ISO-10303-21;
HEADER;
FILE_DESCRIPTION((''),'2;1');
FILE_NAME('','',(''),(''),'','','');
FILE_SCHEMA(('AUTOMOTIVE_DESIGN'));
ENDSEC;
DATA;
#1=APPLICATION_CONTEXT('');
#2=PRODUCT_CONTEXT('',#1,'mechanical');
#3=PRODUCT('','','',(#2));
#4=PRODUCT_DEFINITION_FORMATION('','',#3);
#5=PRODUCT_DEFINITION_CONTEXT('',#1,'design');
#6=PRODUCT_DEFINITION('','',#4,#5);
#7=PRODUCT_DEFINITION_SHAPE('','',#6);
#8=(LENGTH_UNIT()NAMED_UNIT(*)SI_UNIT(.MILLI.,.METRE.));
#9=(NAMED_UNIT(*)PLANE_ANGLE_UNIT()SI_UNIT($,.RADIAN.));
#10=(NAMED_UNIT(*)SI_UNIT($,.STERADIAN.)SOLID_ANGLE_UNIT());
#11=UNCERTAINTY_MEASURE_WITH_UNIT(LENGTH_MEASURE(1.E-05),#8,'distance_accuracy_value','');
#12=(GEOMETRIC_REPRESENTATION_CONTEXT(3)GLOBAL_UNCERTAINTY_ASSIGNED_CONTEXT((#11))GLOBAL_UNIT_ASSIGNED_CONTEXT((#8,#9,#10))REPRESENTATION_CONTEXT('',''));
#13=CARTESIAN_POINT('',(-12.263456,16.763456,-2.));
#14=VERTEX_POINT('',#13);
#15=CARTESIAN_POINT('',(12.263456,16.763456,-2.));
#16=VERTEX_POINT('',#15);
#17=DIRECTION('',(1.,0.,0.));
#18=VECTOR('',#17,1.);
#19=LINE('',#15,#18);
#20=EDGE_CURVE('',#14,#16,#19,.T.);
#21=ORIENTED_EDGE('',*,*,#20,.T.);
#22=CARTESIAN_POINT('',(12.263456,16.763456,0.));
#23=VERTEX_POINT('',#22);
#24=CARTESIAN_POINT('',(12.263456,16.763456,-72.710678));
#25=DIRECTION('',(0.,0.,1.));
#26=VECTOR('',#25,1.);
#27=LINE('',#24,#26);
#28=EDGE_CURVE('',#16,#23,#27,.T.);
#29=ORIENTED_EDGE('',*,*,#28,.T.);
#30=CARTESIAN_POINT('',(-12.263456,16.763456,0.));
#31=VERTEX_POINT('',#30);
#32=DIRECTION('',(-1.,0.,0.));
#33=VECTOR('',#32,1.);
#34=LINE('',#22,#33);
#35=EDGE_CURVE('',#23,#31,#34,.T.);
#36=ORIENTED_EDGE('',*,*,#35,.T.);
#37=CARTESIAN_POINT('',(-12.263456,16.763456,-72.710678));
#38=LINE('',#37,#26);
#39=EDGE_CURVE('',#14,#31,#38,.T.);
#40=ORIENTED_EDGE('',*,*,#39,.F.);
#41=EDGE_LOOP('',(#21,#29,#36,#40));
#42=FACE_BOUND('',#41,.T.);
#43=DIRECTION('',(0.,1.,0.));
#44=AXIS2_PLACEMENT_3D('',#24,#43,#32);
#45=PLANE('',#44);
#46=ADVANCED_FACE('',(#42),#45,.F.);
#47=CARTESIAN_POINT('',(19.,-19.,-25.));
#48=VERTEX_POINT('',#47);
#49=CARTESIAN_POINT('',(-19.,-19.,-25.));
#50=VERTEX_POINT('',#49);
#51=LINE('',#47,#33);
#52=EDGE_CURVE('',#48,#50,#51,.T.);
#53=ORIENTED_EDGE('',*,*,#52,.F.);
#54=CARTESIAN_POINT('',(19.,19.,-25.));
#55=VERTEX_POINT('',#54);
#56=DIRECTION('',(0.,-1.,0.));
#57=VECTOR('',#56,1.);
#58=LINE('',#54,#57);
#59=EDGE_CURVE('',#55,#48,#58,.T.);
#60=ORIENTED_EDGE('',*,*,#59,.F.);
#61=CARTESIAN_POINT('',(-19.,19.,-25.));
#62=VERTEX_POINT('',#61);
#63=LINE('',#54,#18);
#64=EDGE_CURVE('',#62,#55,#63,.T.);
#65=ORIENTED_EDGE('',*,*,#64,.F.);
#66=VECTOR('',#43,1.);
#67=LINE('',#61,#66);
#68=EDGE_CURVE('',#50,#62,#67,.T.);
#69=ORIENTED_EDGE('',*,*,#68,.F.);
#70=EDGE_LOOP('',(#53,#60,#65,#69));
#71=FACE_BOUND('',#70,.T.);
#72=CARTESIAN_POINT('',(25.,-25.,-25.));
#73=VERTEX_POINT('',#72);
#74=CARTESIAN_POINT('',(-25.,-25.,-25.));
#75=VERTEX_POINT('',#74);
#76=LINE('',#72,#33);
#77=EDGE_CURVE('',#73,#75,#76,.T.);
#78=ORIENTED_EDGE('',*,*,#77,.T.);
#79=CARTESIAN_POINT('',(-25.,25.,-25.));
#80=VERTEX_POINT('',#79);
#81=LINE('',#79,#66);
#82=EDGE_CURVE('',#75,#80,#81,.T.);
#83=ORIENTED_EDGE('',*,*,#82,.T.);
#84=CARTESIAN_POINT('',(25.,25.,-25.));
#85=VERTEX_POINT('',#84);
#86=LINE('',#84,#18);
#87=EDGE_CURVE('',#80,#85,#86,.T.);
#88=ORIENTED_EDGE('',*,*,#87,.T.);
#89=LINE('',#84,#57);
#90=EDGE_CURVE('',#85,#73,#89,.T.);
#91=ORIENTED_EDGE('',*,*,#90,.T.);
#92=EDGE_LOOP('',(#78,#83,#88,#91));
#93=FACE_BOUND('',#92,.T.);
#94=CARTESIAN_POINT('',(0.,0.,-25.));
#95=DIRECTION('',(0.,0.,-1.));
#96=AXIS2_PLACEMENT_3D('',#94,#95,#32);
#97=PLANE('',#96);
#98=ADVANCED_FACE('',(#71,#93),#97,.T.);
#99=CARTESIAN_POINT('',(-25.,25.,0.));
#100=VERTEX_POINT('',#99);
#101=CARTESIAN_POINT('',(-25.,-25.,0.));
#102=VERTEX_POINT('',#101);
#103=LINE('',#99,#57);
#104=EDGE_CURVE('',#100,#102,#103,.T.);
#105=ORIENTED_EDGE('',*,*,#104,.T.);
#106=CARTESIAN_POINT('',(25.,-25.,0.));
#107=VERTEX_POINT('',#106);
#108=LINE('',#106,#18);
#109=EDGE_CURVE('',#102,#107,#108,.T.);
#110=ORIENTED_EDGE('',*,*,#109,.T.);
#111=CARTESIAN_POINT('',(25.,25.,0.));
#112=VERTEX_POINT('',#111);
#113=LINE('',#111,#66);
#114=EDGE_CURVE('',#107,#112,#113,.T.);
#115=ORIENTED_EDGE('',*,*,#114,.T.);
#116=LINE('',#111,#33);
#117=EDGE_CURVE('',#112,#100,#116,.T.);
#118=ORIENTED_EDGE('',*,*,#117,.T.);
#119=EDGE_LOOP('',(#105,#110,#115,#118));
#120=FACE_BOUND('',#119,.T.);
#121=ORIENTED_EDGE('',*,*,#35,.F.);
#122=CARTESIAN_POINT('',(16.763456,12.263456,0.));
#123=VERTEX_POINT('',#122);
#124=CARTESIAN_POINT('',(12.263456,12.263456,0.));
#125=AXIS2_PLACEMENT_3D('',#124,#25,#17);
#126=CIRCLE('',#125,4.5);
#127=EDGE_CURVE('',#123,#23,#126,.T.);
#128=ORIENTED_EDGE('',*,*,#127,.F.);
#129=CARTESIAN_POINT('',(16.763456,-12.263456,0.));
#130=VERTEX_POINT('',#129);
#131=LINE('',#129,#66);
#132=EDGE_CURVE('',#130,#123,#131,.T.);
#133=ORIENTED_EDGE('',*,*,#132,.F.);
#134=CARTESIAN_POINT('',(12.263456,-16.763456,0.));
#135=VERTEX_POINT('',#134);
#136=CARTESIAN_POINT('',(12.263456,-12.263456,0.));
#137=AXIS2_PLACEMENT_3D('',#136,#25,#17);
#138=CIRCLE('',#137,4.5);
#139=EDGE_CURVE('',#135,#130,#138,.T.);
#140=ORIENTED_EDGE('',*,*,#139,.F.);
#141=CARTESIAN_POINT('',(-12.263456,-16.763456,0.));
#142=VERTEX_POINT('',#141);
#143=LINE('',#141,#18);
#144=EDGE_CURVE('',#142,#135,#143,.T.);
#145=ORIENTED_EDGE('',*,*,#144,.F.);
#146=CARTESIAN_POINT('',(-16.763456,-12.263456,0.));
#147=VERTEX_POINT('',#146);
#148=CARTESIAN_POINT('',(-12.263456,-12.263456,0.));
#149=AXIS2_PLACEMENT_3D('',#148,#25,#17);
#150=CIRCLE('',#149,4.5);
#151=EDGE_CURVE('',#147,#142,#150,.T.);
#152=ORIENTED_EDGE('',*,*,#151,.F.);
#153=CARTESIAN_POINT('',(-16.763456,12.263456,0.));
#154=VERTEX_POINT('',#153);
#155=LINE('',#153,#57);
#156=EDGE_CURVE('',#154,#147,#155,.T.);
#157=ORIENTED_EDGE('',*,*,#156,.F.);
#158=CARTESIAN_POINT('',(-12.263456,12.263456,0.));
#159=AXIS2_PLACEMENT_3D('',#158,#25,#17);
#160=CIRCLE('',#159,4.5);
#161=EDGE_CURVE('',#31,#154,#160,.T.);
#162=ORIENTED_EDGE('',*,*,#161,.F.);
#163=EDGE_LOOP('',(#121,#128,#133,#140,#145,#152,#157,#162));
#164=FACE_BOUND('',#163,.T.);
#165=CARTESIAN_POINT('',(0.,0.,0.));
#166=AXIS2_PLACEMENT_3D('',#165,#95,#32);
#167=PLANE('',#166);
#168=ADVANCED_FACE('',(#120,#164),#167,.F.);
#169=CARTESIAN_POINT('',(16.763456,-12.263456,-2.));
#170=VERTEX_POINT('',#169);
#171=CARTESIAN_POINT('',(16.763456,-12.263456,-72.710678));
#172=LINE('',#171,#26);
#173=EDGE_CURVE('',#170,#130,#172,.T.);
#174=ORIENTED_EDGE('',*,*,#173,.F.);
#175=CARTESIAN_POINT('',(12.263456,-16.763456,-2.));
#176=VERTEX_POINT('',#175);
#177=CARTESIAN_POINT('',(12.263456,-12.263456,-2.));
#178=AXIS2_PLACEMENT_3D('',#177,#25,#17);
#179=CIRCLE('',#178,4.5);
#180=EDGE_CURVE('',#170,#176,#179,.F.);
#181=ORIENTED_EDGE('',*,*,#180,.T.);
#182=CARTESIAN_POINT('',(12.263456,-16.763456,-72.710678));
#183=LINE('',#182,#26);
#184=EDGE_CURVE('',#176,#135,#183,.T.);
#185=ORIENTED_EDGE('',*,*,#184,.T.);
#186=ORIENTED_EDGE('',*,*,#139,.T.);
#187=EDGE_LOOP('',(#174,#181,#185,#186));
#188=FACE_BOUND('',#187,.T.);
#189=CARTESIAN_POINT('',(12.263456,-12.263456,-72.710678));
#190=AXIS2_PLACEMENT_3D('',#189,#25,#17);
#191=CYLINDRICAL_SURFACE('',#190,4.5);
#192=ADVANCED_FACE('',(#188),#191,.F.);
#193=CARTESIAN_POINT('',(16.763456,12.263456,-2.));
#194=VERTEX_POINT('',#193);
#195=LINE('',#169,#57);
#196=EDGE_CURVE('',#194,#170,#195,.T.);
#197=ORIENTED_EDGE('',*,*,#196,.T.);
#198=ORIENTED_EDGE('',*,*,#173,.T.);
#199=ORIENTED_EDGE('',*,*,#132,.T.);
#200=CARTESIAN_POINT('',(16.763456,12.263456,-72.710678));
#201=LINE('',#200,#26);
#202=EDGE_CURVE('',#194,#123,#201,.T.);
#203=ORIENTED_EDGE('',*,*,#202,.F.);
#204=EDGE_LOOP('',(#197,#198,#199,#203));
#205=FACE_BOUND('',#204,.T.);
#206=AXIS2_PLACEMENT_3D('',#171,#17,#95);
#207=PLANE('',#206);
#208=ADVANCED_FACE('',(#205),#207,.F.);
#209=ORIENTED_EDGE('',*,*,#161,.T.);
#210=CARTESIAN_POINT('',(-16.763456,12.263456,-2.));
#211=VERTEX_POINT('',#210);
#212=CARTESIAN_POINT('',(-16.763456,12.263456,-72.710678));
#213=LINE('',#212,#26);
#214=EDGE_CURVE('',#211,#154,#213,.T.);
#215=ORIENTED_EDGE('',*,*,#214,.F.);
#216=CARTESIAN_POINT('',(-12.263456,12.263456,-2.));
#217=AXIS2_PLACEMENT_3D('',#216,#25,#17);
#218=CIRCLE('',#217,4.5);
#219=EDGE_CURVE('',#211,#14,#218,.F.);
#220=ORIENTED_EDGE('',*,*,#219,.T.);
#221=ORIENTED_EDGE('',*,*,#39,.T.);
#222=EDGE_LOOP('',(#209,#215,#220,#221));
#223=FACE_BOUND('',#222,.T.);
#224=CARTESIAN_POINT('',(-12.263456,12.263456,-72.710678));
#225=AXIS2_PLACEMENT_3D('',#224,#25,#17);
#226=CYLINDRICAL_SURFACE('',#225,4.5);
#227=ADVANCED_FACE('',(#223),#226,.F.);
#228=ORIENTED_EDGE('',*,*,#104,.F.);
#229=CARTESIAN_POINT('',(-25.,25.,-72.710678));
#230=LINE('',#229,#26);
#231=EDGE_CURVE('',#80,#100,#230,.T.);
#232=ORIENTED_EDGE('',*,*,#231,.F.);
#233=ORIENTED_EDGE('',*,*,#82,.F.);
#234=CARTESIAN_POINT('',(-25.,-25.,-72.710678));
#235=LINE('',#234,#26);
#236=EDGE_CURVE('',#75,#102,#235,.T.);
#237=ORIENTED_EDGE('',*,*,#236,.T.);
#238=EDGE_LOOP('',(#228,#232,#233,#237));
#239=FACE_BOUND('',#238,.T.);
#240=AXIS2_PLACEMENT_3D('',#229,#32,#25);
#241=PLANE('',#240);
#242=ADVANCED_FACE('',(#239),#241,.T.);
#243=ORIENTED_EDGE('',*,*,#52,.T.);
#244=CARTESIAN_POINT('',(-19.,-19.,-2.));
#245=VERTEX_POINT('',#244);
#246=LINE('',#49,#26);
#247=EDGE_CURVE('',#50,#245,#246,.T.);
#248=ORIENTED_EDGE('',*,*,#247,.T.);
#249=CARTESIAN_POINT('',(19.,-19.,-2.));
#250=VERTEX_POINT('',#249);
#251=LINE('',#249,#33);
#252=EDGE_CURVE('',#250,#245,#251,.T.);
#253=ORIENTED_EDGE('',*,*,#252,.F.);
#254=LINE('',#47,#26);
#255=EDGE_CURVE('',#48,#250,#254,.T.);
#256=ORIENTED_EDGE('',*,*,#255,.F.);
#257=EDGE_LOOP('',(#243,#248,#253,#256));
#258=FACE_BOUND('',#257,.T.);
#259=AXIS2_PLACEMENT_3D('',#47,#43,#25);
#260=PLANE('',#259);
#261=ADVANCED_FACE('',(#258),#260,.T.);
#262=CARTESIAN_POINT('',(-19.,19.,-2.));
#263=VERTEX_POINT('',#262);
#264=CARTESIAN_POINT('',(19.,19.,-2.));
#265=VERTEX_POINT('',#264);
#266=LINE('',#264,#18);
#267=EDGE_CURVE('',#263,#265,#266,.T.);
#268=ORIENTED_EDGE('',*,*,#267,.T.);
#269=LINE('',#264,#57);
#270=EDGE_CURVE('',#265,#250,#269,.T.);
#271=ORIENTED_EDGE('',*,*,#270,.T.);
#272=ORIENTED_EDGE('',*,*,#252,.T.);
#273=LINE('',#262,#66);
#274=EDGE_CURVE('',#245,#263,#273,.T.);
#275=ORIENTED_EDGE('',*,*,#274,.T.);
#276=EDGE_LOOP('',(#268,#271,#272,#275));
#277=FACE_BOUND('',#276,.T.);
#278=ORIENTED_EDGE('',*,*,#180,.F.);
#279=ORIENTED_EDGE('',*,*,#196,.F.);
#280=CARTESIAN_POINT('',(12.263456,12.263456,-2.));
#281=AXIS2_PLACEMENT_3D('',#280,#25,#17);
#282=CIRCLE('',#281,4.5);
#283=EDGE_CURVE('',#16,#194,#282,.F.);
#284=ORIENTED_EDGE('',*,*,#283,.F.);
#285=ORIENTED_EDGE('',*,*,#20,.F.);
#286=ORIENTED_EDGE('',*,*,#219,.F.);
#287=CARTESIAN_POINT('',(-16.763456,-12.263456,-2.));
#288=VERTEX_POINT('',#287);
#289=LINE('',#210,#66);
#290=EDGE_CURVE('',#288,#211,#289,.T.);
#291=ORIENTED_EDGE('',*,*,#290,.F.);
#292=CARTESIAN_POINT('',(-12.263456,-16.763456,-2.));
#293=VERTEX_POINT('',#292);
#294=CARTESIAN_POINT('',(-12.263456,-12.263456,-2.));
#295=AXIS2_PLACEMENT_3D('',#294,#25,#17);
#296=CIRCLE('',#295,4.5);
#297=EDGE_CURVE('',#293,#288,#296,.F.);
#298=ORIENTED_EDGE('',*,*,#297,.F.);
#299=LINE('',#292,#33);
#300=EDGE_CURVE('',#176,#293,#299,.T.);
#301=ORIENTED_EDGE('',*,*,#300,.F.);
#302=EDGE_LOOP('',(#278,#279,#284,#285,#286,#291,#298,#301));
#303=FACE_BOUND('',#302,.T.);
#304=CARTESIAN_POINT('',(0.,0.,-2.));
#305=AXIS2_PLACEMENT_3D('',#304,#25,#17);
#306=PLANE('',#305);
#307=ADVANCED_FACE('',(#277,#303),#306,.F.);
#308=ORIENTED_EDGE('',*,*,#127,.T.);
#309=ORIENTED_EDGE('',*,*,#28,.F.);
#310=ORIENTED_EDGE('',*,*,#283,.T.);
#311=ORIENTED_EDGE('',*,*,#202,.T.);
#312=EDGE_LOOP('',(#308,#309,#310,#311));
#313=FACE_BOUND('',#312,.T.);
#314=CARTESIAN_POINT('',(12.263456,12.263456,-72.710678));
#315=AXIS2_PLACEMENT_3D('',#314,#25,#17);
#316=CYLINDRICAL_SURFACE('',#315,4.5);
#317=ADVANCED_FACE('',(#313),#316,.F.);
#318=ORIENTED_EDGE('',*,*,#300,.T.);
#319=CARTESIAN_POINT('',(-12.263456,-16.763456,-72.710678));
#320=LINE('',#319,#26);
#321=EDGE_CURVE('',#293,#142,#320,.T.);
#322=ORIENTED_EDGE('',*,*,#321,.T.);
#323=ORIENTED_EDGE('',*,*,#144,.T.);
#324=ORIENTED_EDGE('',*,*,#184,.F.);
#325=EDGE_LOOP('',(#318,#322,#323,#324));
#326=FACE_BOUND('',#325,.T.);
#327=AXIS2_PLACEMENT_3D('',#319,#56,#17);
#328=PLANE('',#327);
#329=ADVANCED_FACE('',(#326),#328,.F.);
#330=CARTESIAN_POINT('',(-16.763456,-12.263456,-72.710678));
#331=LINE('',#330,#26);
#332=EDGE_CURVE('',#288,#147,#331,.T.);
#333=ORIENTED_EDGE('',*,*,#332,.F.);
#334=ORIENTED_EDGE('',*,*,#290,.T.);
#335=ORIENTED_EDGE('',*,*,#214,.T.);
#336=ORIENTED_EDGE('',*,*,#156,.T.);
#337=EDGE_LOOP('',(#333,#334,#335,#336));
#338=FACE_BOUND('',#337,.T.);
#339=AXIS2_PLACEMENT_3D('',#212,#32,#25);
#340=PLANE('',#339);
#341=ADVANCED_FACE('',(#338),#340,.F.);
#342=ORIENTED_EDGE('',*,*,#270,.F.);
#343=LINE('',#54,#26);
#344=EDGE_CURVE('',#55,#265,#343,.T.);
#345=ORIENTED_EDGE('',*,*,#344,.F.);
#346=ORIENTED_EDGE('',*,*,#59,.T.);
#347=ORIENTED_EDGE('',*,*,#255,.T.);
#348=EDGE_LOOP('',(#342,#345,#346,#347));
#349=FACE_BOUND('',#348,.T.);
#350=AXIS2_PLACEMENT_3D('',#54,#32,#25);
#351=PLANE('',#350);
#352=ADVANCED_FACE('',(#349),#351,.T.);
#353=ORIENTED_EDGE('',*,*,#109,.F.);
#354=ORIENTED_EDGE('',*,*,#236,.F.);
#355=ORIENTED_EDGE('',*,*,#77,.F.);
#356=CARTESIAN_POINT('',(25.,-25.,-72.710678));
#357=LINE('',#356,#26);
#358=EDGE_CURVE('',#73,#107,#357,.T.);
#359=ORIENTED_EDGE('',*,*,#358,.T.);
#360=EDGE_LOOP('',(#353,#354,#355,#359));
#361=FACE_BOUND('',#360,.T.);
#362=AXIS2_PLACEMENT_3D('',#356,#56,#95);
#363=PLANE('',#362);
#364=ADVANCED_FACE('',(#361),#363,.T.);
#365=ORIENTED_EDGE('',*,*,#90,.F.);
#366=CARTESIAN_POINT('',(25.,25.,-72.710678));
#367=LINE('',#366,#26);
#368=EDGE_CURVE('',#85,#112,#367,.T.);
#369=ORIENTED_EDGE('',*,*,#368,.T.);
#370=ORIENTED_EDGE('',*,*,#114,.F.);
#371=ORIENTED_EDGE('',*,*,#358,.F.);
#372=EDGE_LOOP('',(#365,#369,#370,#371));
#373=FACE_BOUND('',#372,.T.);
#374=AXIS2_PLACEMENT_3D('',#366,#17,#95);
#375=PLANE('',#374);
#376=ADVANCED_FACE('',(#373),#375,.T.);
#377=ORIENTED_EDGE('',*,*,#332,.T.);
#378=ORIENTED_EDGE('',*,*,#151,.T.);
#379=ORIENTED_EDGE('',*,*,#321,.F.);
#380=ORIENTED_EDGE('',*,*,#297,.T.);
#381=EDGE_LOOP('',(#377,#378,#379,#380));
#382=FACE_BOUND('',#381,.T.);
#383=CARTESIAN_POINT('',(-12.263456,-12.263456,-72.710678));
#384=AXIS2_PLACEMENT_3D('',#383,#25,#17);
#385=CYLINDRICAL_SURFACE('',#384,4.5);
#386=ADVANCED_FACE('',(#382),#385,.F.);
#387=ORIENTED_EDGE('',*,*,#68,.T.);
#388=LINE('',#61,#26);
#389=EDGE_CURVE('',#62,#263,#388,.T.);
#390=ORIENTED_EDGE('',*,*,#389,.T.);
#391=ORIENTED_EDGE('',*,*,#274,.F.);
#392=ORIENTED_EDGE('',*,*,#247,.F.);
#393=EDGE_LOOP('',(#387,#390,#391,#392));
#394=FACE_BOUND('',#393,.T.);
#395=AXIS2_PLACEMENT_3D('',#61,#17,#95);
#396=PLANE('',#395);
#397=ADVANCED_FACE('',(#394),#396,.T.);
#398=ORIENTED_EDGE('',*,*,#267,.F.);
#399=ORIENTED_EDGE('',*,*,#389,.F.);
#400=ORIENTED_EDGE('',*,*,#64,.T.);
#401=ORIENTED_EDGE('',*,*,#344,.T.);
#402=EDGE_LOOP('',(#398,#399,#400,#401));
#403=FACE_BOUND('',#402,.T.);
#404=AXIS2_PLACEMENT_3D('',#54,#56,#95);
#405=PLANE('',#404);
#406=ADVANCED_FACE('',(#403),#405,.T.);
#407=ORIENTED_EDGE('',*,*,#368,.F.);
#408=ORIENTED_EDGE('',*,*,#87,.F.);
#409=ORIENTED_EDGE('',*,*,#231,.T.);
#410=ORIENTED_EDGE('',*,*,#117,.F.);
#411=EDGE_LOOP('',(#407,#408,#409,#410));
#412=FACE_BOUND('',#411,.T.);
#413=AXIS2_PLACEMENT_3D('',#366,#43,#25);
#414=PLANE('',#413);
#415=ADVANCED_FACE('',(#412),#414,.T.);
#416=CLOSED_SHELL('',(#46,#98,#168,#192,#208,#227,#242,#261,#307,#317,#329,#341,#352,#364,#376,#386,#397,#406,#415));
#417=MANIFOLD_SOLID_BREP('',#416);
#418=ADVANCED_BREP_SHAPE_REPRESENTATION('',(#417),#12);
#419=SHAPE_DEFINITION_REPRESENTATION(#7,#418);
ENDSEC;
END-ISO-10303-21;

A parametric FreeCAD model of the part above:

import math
import FreeCAD as App
import Part
import Sketcher

doc = App.newDocument("Part")
body = doc.addObject("PartDesign::Body", "Body")

# Sketch on XY plane
sketch1 = doc.addObject("Sketcher::SketchObject", "Sketch")
body.addObject(sketch1)
sketch1.AttachmentSupport = (doc.XY_Plane, [""])
sketch1.MapMode = "FlatFace"
sketch1.addGeometry([
    Part.LineSegment(App.Vector(-25, 25, 0), App.Vector(-25, -25, 0)),  # 0
    Part.LineSegment(App.Vector(-25, -25, 0), App.Vector(25, -25, 0)),  # 1
    Part.LineSegment(App.Vector(25, -25, 0), App.Vector(25, 25, 0)),  # 2
    Part.LineSegment(App.Vector(25, 25, 0), App.Vector(-25, 25, 0)),  # 3
    Part.LineSegment(App.Vector(-12.3, 16.8, 0), App.Vector(12.3, 16.8, 0)),  # 4
    Part.ArcOfCircle(Part.Circle(App.Vector(12.3, 12.3, 0), App.Vector(0, 0, 1), 4.5), math.radians(0), math.radians(90)),  # 5
    Part.LineSegment(App.Vector(16.8, 12.3, 0), App.Vector(16.8, -12.3, 0)),  # 6
    Part.ArcOfCircle(Part.Circle(App.Vector(12.3, -12.3, 0), App.Vector(0, 0, 1), 4.5), math.radians(-90), math.radians(0)),  # 7
    Part.LineSegment(App.Vector(12.3, -16.8, 0), App.Vector(-12.3, -16.8, 0)),  # 8
    Part.ArcOfCircle(Part.Circle(App.Vector(-12.3, -12.3, 0), App.Vector(0, 0, 1), 4.5), math.radians(180), math.radians(270)),  # 9
    Part.LineSegment(App.Vector(-16.8, -12.3, 0), App.Vector(-16.8, 12.3, 0)),  # 10
    Part.ArcOfCircle(Part.Circle(App.Vector(-12.3, 12.3, 0), App.Vector(0, 0, 1), 4.5), math.radians(90), math.radians(180)),  # 11
], False)
sketch1.addConstraint([
    Sketcher.Constraint("Coincident", 0, 2, 1, 1),
    Sketcher.Constraint("Coincident", 1, 2, 2, 1),
    Sketcher.Constraint("Coincident", 2, 2, 3, 1),
    Sketcher.Constraint("Coincident", 3, 2, 0, 1),
    Sketcher.Constraint("Tangent", 4, 2, 5, 2),
    Sketcher.Constraint("Tangent", 5, 1, 6, 1),
    Sketcher.Constraint("Tangent", 6, 2, 7, 2),
    Sketcher.Constraint("Tangent", 7, 1, 8, 1),
    Sketcher.Constraint("Tangent", 8, 2, 9, 2),
    Sketcher.Constraint("Tangent", 9, 1, 10, 1),
    Sketcher.Constraint("Tangent", 10, 2, 11, 2),
    Sketcher.Constraint("Tangent", 11, 1, 4, 1),
    Sketcher.Constraint("Vertical", 0),
    Sketcher.Constraint("Horizontal", 1),
    Sketcher.Constraint("Vertical", 2),
    Sketcher.Constraint("Horizontal", 3),
    Sketcher.Constraint("Horizontal", 4),
    Sketcher.Constraint("Vertical", 6),
    Sketcher.Constraint("Horizontal", 8),
    Sketcher.Constraint("Vertical", 10),
    Sketcher.Constraint("Equal", 5, 7),
    Sketcher.Constraint("Equal", 7, 9),
    Sketcher.Constraint("Equal", 9, 11),
    Sketcher.Constraint("Symmetric", 5, 3, 9, 3, -1, 1),
    Sketcher.Constraint("Symmetric", 0, 2, 2, 2, -1, 1),
    Sketcher.Constraint("Equal", 3, 0),
    Sketcher.Constraint("Equal", 8, 6),
    Sketcher.Constraint("Radius", 5, 4.5),
    Sketcher.Constraint("DistanceX", 1, 1, 1, 2, 50.0),
    Sketcher.Constraint("DistanceX", 4, 1, 4, 2, 24.526912),
])
pad1 = doc.addObject("PartDesign::Pad", "Pad")
body.addObject(pad1)
pad1.Profile = sketch1
pad1.Length = 2
pad1.Reversed = True

# Sketch on XY plane
sketch2 = doc.addObject("Sketcher::SketchObject", "Sketch001")
body.addObject(sketch2)
sketch2.AttachmentSupport = (doc.XY_Plane, [""])
sketch2.MapMode = "FlatFace"
sketch2.AttachmentOffset = App.Placement(App.Vector(0, 0, -2), App.Rotation())
sketch2.addGeometry([
    Part.LineSegment(App.Vector(25, 25, 0), App.Vector(25, -25, 0)),  # 0
    Part.LineSegment(App.Vector(25, -25, 0), App.Vector(-25, -25, 0)),  # 1
    Part.LineSegment(App.Vector(-25, -25, 0), App.Vector(-25, 25, 0)),  # 2
    Part.LineSegment(App.Vector(-25, 25, 0), App.Vector(25, 25, 0)),  # 3
    Part.LineSegment(App.Vector(-19, -19, 0), App.Vector(19, -19, 0)),  # 4
    Part.LineSegment(App.Vector(19, -19, 0), App.Vector(19, 19, 0)),  # 5
    Part.LineSegment(App.Vector(19, 19, 0), App.Vector(-19, 19, 0)),  # 6
    Part.LineSegment(App.Vector(-19, 19, 0), App.Vector(-19, -19, 0)),  # 7
], False)
sketch2.addConstraint([
    Sketcher.Constraint("Coincident", 0, 2, 1, 1),
    Sketcher.Constraint("Coincident", 1, 2, 2, 1),
    Sketcher.Constraint("Coincident", 2, 2, 3, 1),
    Sketcher.Constraint("Coincident", 3, 2, 0, 1),
    Sketcher.Constraint("Coincident", 4, 2, 5, 1),
    Sketcher.Constraint("Coincident", 5, 2, 6, 1),
    Sketcher.Constraint("Coincident", 6, 2, 7, 1),
    Sketcher.Constraint("Coincident", 7, 2, 4, 1),
    Sketcher.Constraint("Vertical", 0),
    Sketcher.Constraint("Horizontal", 1),
    Sketcher.Constraint("Vertical", 2),
    Sketcher.Constraint("Horizontal", 3),
    Sketcher.Constraint("Horizontal", 4),
    Sketcher.Constraint("Vertical", 5),
    Sketcher.Constraint("Horizontal", 6),
    Sketcher.Constraint("Vertical", 7),
    Sketcher.Constraint("Symmetric", 0, 2, 2, 2, -1, 1),
    Sketcher.Constraint("Symmetric", 4, 2, 6, 2, -1, 1),
    Sketcher.Constraint("Equal", 3, 0),
    Sketcher.Constraint("Equal", 6, 5),
    Sketcher.Constraint("DistanceX", 1, 2, 1, 1, 50.0),
    Sketcher.Constraint("DistanceX", 4, 1, 4, 2, 38.0),
])
pad2 = doc.addObject("PartDesign::Pad", "Pad001")
body.addObject(pad2)
pad2.Profile = sketch2
pad2.Length = 23
pad2.Reversed = True

doc.recompute()
